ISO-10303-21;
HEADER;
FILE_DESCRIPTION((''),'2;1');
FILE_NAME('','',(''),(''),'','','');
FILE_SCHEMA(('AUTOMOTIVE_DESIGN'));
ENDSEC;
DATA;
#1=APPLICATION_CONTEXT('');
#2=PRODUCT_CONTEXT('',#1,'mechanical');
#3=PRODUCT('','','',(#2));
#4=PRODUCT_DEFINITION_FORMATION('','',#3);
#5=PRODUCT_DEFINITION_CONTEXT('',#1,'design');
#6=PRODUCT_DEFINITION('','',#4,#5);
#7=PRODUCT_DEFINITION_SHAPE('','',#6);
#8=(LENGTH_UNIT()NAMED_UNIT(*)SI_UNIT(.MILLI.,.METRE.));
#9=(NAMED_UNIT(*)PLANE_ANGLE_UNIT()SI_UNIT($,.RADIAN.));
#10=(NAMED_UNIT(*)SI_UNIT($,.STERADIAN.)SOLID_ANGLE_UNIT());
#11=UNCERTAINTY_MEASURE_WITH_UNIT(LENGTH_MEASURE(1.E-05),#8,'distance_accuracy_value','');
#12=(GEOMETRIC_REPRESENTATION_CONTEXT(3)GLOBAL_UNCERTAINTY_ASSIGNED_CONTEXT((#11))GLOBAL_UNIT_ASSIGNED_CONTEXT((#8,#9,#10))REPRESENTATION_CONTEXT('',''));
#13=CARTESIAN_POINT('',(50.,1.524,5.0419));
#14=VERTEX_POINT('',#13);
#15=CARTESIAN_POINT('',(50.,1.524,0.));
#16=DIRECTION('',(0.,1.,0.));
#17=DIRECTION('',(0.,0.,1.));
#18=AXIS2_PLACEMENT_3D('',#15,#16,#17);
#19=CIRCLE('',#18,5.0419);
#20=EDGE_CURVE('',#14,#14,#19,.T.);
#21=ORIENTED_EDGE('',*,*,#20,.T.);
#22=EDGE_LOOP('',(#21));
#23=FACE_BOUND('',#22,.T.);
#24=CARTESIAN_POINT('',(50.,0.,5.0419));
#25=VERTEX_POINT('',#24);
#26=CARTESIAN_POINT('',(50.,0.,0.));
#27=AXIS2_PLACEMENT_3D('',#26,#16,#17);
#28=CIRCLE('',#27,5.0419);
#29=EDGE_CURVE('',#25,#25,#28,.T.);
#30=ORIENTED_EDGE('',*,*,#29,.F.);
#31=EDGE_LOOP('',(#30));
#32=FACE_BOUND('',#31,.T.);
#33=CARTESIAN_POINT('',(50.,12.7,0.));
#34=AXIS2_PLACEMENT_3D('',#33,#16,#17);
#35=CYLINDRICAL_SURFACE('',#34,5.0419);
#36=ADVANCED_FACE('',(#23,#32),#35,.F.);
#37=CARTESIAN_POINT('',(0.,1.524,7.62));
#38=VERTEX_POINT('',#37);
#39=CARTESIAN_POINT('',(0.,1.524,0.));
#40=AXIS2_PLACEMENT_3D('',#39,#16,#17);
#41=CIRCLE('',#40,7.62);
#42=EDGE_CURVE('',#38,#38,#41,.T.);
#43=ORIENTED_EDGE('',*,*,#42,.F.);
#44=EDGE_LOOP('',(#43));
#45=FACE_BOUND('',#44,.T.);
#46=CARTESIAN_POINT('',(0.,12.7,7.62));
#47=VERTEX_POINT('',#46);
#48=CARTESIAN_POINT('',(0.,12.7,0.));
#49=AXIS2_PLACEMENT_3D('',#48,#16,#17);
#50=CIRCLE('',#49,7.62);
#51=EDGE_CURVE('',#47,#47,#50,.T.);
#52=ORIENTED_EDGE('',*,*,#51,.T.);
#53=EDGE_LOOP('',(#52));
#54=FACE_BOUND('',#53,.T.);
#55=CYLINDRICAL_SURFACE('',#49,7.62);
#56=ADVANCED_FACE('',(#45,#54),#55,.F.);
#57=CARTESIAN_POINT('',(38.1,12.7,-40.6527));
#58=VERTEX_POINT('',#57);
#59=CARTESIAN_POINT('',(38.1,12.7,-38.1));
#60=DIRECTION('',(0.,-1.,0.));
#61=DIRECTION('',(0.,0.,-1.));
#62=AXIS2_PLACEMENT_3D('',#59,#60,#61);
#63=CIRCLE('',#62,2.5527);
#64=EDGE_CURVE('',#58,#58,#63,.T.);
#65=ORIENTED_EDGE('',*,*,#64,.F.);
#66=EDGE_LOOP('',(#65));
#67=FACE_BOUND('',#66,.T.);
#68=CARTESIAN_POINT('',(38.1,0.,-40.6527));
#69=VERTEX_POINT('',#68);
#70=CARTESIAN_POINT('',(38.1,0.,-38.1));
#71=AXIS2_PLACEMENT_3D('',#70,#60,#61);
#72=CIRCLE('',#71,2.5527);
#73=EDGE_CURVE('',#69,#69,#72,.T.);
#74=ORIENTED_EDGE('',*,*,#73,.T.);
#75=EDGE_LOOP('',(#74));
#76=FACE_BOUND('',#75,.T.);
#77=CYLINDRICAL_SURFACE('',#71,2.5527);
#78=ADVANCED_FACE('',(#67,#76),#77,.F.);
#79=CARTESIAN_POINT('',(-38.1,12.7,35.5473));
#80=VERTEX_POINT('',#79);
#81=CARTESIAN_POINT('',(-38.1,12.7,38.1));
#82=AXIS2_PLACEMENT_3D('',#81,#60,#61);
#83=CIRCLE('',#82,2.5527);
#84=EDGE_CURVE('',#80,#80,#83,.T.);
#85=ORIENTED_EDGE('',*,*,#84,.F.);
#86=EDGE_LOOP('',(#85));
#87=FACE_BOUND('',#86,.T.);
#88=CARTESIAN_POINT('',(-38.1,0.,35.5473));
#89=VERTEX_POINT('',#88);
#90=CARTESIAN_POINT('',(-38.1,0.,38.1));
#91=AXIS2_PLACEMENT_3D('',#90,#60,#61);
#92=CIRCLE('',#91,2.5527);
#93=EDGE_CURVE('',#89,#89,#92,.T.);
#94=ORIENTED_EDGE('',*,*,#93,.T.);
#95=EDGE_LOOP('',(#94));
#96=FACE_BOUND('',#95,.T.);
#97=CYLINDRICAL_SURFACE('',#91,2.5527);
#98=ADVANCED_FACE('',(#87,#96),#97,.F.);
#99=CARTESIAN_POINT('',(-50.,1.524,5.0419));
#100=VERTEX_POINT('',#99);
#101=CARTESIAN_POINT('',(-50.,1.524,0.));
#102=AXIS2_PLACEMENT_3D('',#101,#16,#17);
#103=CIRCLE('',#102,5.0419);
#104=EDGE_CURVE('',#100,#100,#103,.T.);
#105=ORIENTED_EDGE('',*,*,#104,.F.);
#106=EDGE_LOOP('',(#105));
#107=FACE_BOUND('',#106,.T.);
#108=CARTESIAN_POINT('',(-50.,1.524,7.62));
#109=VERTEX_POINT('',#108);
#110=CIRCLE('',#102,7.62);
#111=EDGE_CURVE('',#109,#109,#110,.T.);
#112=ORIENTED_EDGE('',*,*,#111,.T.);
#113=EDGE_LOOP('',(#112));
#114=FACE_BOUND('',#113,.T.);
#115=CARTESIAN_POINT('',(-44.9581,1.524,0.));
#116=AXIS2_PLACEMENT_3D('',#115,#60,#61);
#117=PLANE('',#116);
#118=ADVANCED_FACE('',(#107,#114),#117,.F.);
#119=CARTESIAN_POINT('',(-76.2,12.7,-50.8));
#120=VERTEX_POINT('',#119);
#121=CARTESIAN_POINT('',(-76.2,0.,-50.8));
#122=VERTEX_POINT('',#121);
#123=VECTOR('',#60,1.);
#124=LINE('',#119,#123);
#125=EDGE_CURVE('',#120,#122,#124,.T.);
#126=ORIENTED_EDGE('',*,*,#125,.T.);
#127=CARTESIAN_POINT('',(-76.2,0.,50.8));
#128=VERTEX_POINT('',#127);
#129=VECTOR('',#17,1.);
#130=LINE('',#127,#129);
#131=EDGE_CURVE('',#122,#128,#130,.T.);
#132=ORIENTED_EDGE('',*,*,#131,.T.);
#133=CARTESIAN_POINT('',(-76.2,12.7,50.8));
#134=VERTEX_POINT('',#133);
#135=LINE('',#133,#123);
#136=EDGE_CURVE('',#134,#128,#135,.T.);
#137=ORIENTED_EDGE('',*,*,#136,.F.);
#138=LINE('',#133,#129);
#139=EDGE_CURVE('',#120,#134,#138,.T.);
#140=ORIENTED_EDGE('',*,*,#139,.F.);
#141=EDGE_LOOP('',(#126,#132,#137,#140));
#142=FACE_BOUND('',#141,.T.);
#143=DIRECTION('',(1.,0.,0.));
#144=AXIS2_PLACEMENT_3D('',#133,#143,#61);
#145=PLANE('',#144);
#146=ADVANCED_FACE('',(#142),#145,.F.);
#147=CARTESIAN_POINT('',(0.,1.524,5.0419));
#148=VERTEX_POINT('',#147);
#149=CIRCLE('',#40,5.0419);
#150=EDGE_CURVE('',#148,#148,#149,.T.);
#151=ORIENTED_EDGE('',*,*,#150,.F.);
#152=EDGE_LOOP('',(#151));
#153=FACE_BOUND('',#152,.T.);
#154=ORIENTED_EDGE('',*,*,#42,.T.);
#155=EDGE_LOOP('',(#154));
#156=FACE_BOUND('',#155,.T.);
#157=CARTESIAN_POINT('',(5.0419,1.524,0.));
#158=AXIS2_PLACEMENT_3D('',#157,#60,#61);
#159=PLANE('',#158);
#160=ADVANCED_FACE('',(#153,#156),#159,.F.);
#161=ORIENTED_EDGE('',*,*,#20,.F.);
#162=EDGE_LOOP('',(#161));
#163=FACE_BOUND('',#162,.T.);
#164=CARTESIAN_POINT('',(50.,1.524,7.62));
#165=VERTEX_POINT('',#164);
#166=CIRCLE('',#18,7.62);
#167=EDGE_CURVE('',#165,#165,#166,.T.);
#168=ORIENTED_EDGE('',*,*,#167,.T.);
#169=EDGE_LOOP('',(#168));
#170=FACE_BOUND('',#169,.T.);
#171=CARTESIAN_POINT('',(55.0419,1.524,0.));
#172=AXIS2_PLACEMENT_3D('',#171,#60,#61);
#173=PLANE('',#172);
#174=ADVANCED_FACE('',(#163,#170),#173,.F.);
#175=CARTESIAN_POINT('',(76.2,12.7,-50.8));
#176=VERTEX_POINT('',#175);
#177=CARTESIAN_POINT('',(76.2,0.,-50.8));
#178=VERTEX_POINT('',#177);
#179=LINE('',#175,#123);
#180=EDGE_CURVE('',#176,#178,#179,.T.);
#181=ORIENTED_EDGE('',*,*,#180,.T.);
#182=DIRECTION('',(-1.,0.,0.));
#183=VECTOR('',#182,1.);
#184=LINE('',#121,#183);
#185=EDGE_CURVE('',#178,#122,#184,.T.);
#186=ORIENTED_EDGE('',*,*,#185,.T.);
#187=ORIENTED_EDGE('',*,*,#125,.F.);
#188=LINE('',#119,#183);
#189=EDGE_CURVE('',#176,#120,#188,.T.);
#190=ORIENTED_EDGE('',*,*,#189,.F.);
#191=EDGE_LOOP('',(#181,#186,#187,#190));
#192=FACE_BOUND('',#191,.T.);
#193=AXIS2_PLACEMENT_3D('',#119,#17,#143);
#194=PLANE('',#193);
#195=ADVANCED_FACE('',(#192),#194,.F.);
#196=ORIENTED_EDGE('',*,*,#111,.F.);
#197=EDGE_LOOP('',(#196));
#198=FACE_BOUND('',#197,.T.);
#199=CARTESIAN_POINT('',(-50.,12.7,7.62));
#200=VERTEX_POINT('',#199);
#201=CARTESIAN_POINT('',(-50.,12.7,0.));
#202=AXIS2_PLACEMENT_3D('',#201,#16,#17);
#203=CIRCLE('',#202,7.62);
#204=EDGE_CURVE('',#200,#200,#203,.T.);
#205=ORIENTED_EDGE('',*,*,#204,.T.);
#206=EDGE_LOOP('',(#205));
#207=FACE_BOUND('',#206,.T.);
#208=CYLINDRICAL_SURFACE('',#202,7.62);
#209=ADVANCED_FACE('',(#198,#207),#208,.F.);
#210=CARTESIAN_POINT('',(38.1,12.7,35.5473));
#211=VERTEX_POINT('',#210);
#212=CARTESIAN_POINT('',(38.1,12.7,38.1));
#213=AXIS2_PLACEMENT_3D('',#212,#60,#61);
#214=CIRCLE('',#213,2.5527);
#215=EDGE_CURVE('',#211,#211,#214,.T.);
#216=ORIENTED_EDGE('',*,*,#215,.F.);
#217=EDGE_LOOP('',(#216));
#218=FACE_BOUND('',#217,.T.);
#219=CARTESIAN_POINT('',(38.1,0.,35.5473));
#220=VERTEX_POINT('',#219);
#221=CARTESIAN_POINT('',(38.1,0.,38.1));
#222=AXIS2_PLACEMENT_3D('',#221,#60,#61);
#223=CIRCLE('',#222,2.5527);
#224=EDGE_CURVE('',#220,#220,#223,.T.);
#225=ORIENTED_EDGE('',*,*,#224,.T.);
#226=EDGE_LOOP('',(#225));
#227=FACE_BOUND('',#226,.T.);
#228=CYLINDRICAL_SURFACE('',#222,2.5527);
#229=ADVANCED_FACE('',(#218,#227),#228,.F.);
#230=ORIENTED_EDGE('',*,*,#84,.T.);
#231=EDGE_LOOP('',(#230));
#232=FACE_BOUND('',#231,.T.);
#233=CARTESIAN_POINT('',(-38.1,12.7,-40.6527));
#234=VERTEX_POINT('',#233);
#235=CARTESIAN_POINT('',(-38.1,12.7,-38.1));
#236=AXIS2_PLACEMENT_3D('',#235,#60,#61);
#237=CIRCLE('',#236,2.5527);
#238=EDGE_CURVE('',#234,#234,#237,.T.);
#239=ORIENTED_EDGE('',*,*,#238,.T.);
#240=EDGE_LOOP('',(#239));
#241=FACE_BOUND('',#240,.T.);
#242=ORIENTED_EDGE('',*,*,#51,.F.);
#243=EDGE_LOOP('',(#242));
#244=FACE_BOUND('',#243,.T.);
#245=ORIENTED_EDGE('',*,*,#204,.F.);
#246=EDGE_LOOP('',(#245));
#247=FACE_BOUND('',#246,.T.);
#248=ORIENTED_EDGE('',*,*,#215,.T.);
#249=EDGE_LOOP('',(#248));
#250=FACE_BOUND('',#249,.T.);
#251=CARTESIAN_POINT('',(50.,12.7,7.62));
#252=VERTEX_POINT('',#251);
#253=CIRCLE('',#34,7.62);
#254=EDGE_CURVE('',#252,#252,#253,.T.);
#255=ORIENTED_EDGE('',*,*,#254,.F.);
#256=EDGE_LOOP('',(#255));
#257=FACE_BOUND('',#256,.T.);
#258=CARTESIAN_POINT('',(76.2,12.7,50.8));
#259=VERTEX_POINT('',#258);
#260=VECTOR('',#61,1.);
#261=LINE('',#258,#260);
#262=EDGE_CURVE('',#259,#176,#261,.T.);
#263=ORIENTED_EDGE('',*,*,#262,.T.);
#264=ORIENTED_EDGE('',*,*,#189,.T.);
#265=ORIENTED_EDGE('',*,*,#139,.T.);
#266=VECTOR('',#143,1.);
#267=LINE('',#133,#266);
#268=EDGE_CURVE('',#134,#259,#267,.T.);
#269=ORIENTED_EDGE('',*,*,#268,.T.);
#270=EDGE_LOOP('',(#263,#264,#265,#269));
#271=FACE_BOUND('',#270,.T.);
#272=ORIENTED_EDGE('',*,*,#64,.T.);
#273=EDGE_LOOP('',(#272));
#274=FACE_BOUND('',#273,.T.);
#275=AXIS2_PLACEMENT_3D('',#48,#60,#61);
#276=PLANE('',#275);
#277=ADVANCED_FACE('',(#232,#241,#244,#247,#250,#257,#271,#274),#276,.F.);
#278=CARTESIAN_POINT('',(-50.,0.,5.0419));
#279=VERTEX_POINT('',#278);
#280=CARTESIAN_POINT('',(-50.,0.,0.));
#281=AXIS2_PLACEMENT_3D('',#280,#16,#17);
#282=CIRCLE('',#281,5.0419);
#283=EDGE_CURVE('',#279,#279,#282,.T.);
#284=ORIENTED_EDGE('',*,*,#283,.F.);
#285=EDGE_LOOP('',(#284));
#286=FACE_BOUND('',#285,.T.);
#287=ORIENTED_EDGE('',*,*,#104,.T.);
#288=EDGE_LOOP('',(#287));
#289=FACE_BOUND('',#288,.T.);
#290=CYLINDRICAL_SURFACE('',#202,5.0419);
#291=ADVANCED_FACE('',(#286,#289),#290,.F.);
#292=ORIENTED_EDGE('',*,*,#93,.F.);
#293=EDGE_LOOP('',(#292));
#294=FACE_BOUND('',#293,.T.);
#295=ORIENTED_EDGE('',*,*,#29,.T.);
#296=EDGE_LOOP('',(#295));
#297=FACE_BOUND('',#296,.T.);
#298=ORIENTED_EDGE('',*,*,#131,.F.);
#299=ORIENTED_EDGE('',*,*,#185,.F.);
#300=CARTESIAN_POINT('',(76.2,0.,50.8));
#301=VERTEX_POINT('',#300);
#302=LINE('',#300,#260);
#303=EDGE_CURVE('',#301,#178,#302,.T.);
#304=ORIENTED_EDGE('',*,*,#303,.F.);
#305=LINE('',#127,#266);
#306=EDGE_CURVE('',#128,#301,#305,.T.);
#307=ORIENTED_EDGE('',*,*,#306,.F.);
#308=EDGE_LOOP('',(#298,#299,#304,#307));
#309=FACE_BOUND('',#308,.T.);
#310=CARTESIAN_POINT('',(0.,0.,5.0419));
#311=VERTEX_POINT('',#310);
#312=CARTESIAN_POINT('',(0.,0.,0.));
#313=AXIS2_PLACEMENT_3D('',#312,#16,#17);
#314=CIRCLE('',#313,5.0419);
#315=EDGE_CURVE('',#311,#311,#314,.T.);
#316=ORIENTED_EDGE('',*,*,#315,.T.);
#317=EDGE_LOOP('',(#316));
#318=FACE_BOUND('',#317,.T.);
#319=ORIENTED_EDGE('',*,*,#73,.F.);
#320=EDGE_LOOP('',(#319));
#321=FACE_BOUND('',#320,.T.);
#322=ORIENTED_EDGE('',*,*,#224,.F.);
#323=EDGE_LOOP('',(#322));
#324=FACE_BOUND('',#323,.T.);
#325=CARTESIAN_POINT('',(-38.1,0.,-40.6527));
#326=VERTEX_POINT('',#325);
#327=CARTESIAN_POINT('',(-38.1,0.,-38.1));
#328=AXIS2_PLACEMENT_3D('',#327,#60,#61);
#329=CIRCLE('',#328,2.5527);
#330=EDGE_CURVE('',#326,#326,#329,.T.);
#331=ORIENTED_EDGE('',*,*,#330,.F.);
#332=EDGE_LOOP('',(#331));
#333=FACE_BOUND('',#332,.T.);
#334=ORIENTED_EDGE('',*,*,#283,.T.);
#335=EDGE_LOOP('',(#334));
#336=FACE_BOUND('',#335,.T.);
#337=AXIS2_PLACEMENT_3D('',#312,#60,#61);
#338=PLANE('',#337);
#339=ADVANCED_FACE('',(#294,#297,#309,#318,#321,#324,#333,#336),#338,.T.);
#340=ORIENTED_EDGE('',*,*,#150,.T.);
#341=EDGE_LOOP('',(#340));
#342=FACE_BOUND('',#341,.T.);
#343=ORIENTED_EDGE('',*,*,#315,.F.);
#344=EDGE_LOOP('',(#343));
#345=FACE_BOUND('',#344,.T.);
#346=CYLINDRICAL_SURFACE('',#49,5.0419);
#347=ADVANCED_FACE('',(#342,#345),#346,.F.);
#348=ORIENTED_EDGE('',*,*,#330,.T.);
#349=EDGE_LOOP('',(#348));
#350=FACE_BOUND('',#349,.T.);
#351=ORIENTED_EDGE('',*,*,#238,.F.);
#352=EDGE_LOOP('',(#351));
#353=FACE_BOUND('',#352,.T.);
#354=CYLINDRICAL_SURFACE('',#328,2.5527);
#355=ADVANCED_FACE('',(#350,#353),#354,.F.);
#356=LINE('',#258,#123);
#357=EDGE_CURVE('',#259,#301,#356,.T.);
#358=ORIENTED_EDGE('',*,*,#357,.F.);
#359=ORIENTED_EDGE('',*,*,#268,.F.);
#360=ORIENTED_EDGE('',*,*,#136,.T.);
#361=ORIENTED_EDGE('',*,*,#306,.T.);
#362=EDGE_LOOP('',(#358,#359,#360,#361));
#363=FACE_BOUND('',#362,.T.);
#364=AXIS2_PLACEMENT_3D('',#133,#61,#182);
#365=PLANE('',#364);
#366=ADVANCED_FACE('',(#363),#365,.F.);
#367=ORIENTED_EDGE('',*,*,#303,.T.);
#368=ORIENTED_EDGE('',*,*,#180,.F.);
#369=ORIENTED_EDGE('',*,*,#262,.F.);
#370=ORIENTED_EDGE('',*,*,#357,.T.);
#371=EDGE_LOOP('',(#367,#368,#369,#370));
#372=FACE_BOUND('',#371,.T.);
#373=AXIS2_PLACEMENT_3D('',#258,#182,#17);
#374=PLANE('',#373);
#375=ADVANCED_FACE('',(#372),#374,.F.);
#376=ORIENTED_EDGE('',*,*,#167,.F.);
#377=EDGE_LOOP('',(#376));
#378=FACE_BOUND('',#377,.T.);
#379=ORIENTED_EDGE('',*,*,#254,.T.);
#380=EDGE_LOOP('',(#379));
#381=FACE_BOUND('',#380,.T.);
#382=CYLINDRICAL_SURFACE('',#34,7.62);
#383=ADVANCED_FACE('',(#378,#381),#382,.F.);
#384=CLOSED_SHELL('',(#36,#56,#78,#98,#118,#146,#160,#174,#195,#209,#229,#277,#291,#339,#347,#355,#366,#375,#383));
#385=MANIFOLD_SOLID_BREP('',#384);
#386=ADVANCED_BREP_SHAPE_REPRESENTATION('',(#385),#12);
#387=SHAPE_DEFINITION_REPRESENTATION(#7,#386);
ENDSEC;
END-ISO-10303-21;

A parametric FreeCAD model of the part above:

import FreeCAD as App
import Part
import Sketcher

V = App.Vector
Q = App.Units.Quantity


def add_polygon(sketch, points):
    """Adds a closed chain of lines whose ends are joined by coincident constraints."""
    first, n = sketch.GeometryCount, len(points)
    for a, b in zip(points, points[1:] + points[:1]):
        sketch.addGeometry(Part.LineSegment(App.Vector(*a, 0), App.Vector(*b, 0)), False)
    for i in range(n):
        sketch.addConstraint(Sketcher.Constraint("Coincident", first + i, 2, first + (i + 1) % n, 1))

doc = App.newDocument("Part")
params = doc.addObject("Spreadsheet::Sheet", "Params")
for row, (alias, value) in enumerate([
    ("sketch1_width", "6 in"),
    ("sketch1_height", "4 in"),
    ("pad1_length", "0.5 in"),
    ("sketch2_diameter", "0.397 in"),
    ("hole_diameter", "0.397 in"),
    ("hole_cbore_diameter", "0.6 in"),
    ("hole_cbore_depth", "0.44 in"),
    ("sketch3_diameter", "0.201 in"),
    ("hole2_diameter", "0.201 in"),
], start=1):
    params.set(f"A{row}", alias)
    params.set(f"B{row}", "=" + value)
    params.setAlias(f"B{row}", alias)

body = doc.addObject("PartDesign::Body", "Body")

# Sketch on XZ plane
sketch1 = doc.addObject("Sketcher::SketchObject", "Sketch")
body.addObject(sketch1)
sketch1.AttachmentSupport = (doc.XZ_Plane, [""])
sketch1.MapMode = "FlatFace"
add_polygon(sketch1, [(-76, -51), (-76, 51), (76, 51), (76, -51)])  # lines 0-3
sketch1.addConstraint([
    Sketcher.Constraint("Vertical", 0),
    Sketcher.Constraint("Horizontal", 1),
    Sketcher.Constraint("Vertical", 2),
    Sketcher.Constraint("Horizontal", 3),
    Sketcher.Constraint("Symmetric", 0, 2, 2, 2, -1, 1),
    Sketcher.Constraint("DistanceX", 1, 1, 1, 2, Q("6 in")),
    Sketcher.Constraint("DistanceY", 0, 1, 0, 2, Q("4 in")),
])
sketch1.setExpression("Constraints[9]", "Params.sketch1_width")
sketch1.setExpression("Constraints[10]", "Params.sketch1_height")
pad1 = doc.addObject("PartDesign::Pad", "Pad")
body.addObject(pad1)
pad1.Profile = sketch1
pad1.setExpression("Length", "Params.pad1_length")
pad1.Reversed = True

# Sketch on XZ plane
sketch2 = doc.addObject("Sketcher::SketchObject", "Sketch001")
body.addObject(sketch2)
sketch2.AttachmentSupport = (doc.XZ_Plane, [""])
sketch2.MapMode = "FlatFace"
sketch2.AttachmentOffset = App.Placement(V(0, 0, -0.5 * 25.4), App.Rotation())
sketch2.addGeometry([
    Part.Circle(V(-50, 0, 0), V(0, 0, 1), 5),
    Part.Circle(V(50, 0, 0), V(0, 0, 1), 5),
    Part.Circle(V(0, 0, 0), V(0, 0, 1), 5),
], False)
sketch2.addConstraint([
    Sketcher.Constraint("Coincident", 2, 3, -1, 1),
    Sketcher.Constraint("Equal", 0, 1),
    Sketcher.Constraint("Equal", 1, 2),
    Sketcher.Constraint("Symmetric", 0, 3, 1, 3, -1, 1),
    Sketcher.Constraint("PointOnObject", 0, 3, -1),
    Sketcher.Constraint("Diameter", 0, Q("0.397 in")),
    Sketcher.Constraint("DistanceX", 0, 3, -1, 1, 50.0),
])
sketch2.setExpression("Constraints[5]", "Params.sketch2_diameter")
doc.recompute()
hole = doc.addObject("PartDesign::Hole", "Hole")
body.addObject(hole)
hole.Profile = sketch2
hole.ThreadType = "None"
hole.setExpression("Diameter", "Params.hole_diameter")
hole.DepthType = "ThroughAll"
hole.HoleCutType = "Counterbore"
hole.setExpression("HoleCutDiameter", "Params.hole_cbore_diameter")
hole.setExpression("HoleCutDepth", "Params.hole_cbore_depth")
hole.Reversed = True

# Sketch on XZ plane
sketch3 = doc.addObject("Sketcher::SketchObject", "Sketch002")
body.addObject(sketch3)
sketch3.AttachmentSupport = (doc.XZ_Plane, [""])
sketch3.MapMode = "FlatFace"
sketch3.addGeometry([
    Part.Circle(V(-38.1, -38.1, 0), V(0, 0, 1), 2.6),
    Part.Circle(V(38.1, -38.1, 0), V(0, 0, 1), 2.6),
    Part.Circle(V(38.1, 38.1, 0), V(0, 0, 1), 2.6),
    Part.Circle(V(-38.1, 38.1, 0), V(0, 0, 1), 2.6),
], False)
sketch3.addConstraint([
    Sketcher.Constraint("Equal", 0, 1),
    Sketcher.Constraint("Equal", 1, 2),
    Sketcher.Constraint("Equal", 2, 3),
    Sketcher.Constraint("Symmetric", 0, 3, 2, 3, -1, 1),
    Sketcher.Constraint("Symmetric", 1, 3, 3, 3, -1, 1),
    Sketcher.Constraint("Symmetric", 0, 3, 1, 3, -2),
    Sketcher.Constraint("Diameter", 0, Q("0.201 in")),
    Sketcher.Constraint("DistanceX", 0, 3, 1, 3, Q("3 in")),
    Sketcher.Constraint("DistanceY", 1, 3, 2, 3, Q("3 in")),
])
sketch3.setExpression("Constraints[6]", "Params.sketch3_diameter")
doc.recompute()
hole2 = doc.addObject("PartDesign::Hole", "Hole001")
body.addObject(hole2)
hole2.Profile = sketch3
hole2.ThreadType = "None"
hole2.setExpression("Diameter", "Params.hole2_diameter")
hole2.DepthType = "ThroughAll"

doc.recompute()
